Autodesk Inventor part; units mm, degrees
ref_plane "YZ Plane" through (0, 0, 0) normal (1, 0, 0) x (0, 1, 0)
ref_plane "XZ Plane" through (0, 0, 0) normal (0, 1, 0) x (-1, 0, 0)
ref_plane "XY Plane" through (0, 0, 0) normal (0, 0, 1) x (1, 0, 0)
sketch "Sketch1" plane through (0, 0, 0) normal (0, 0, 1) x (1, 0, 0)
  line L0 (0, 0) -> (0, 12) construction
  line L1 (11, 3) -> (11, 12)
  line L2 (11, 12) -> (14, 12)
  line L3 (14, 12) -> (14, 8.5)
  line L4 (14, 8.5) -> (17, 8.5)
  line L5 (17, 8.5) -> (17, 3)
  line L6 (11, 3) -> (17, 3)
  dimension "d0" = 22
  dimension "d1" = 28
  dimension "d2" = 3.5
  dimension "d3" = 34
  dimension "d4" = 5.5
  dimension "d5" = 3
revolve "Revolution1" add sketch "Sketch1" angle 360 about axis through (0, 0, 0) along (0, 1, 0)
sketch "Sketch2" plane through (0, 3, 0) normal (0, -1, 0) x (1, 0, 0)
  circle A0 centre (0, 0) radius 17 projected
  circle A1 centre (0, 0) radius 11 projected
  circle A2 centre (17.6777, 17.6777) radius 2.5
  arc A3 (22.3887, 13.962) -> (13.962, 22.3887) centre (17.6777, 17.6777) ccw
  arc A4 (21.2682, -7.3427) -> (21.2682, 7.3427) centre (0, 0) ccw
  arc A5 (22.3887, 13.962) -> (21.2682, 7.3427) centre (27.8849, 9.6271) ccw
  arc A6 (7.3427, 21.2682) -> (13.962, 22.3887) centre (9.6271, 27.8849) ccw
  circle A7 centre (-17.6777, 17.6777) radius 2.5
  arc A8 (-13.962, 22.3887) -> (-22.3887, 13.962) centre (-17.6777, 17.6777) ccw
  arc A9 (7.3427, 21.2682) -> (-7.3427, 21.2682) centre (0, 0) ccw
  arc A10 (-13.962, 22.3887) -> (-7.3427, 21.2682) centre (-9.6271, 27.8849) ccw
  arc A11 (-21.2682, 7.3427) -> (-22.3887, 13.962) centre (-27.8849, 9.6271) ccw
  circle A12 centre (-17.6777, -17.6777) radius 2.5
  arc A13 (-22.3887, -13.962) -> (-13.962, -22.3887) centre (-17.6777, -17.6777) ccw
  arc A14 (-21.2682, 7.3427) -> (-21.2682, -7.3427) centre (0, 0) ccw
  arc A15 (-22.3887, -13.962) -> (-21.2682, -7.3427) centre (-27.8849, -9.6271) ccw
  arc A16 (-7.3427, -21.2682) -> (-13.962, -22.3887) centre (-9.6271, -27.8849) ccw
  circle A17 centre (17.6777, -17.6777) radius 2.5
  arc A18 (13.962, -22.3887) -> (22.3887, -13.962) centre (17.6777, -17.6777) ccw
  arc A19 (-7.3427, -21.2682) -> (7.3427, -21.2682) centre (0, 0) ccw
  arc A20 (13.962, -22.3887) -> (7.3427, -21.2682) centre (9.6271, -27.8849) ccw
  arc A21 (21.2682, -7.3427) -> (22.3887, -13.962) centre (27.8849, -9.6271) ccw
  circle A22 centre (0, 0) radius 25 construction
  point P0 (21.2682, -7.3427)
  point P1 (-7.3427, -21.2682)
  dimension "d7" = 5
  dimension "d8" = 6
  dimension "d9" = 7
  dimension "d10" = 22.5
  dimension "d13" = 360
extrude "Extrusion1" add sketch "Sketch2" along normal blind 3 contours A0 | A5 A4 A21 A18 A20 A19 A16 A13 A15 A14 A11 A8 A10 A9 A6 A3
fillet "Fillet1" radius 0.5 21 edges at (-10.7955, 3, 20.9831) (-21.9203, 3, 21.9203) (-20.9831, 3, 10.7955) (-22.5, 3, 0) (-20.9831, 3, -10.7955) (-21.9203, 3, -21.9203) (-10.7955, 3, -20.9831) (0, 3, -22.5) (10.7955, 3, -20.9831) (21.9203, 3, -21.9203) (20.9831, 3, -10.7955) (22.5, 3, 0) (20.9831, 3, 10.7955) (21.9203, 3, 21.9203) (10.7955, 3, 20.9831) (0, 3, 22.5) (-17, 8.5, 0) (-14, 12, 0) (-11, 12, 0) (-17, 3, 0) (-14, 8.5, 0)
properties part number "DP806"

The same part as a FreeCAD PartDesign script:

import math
import FreeCAD as App
import Part
import Sketcher


def edges_at(feature, points):
    """Names of the edges that pass closest to the given points."""
    edges = feature.Shape.Edges
    near = lambda p: min(range(len(edges)), key=lambda i: edges[i].distToShape(Part.Vertex(*p))[0])
    return sorted({f"Edge{near(p) + 1}" for p in points})


def add_polygon(sketch, points):
    """Adds a closed chain of lines whose ends are joined by coincident constraints."""
    first, n = sketch.GeometryCount, len(points)
    for a, b in zip(points, points[1:] + points[:1]):
        sketch.addGeometry(Part.LineSegment(App.Vector(*a, 0), App.Vector(*b, 0)), False)
    for i in range(n):
        sketch.addConstraint(Sketcher.Constraint("Coincident", first + i, 2, first + (i + 1) % n, 1))

doc = App.newDocument("Part")
body = doc.addObject("PartDesign::Body", "Body")

sketch1 = doc.addObject("Sketcher::SketchObject", "Sketch")
body.addObject(sketch1)
sketch1.AttachmentSupport = (doc.XY_Plane, [""])
sketch1.MapMode = "FlatFace"
add_polygon(sketch1, [(11, 12), (11, 3), (17, 3), (17, 8.5), (14, 8.5), (14, 12)])
sketch1.addConstraint(Sketcher.Constraint("Vertical", 0))
sketch1.addConstraint(Sketcher.Constraint("Horizontal", 1))
sketch1.addConstraint(Sketcher.Constraint("Vertical", 2))
sketch1.addConstraint(Sketcher.Constraint("Horizontal", 3))
sketch1.addConstraint(Sketcher.Constraint("Vertical", 4))
sketch1.addConstraint(Sketcher.Constraint("Horizontal", 5))
sketch1.addConstraint(Sketcher.Constraint("Equal", 3, 5))
sketch1.addConstraint(Sketcher.Constraint("DistanceX", 3, 2, 3, 1, 3.0))
sketch1.addConstraint(Sketcher.Constraint("DistanceY", 2, 1, 2, 2, 5.5))
sketch1.addConstraint(Sketcher.Constraint("DistanceY", 4, 1, 4, 2, 3.5))
sketch1.addConstraint(Sketcher.Constraint("DistanceY", -1, 1, 0, 2, 3.0))
sketch1.addConstraint(Sketcher.Constraint("DistanceX", -1, 1, 0, 2, 11.0))
revolution = doc.addObject("PartDesign::Revolution", "Revolution")
body.addObject(revolution)
revolution.Profile = sketch1
revolution.ReferenceAxis = (sketch1, ["V_Axis"])
revolution.Angle = 360

sketch2 = doc.addObject("Sketcher::SketchObject", "Sketch001")
body.addObject(sketch2)
sketch2.AttachmentSupport = (doc.XZ_Plane, [""])
sketch2.MapMode = "FlatFace"
sketch2.AttachmentOffset = App.Placement(App.Vector(0, 0, -3), App.Rotation())
sketch2.addGeometry(Part.ArcOfCircle(Part.Circle(App.Vector(27.9, 9.6, 0), App.Vector(0, 0, 1), 7), math.radians(142), math.radians(199)), False)
sketch2.addGeometry(Part.ArcOfCircle(Part.Circle(App.Vector(17.7, 17.7, 0), App.Vector(0, 0, 1), 6), math.radians(-38), math.radians(128)), False)
sketch2.addGeometry(Part.ArcOfCircle(Part.Circle(App.Vector(9.6, 27.9, 0), App.Vector(0, 0, 1), 7), math.radians(-109), math.radians(-52)), False)
sketch2.addGeometry(Part.ArcOfCircle(Part.Circle(App.Vector(0, 0, 0), App.Vector(0, 0, 1), 22.5), math.radians(71), math.radians(109)), False)
sketch2.addGeometry(Part.ArcOfCircle(Part.Circle(App.Vector(-9.6, 27.9, 0), App.Vector(0, 0, 1), 7), math.radians(-128), math.radians(-71)), False)
sketch2.addGeometry(Part.ArcOfCircle(Part.Circle(App.Vector(-17.7, 17.7, 0), App.Vector(0, 0, 1), 6), math.radians(52), math.radians(218)), False)
sketch2.addGeometry(Part.ArcOfCircle(Part.Circle(App.Vector(-27.9, 9.6, 0), App.Vector(0, 0, 1), 7), math.radians(-19), math.radians(38)), False)
sketch2.addGeometry(Part.ArcOfCircle(Part.Circle(App.Vector(0, 0, 0), App.Vector(0, 0, 1), 22.5), math.radians(161), math.radians(199)), False)
sketch2.addGeometry(Part.ArcOfCircle(Part.Circle(App.Vector(-27.9, -9.6, 0), App.Vector(0, 0, 1), 7), math.radians(-38), math.radians(19)), False)
sketch2.addGeometry(Part.ArcOfCircle(Part.Circle(App.Vector(-17.7, -17.7, 0), App.Vector(0, 0, 1), 6), math.radians(142), math.radians(308)), False)
sketch2.addGeometry(Part.ArcOfCircle(Part.Circle(App.Vector(-9.6, -27.9, 0), App.Vector(0, 0, 1), 7), math.radians(71), math.radians(128)), False)
sketch2.addGeometry(Part.ArcOfCircle(Part.Circle(App.Vector(0, 0, 0), App.Vector(0, 0, 1), 22.5), math.radians(-109), math.radians(-71)), False)
sketch2.addGeometry(Part.ArcOfCircle(Part.Circle(App.Vector(9.6, -27.9, 0), App.Vector(0, 0, 1), 7), math.radians(52), math.radians(109)), False)
sketch2.addGeometry(Part.ArcOfCircle(Part.Circle(App.Vector(17.7, -17.7, 0), App.Vector(0, 0, 1), 6), math.radians(-128), math.radians(38)), False)
sketch2.addGeometry(Part.ArcOfCircle(Part.Circle(App.Vector(27.9, -9.6, 0), App.Vector(0, 0, 1), 7), math.radians(161), math.radians(218)), False)
sketch2.addGeometry(Part.ArcOfCircle(Part.Circle(App.Vector(0, 0, 0), App.Vector(0, 0, 1), 22.5), math.radians(-19), math.radians(19)), False)
sketch2.addGeometry(Part.Circle(App.Vector(0, 0, 0), App.Vector(0, 0, 1), 11), False)
sketch2.addGeometry(Part.Circle(App.Vector(-17.7, -17.7, 0), App.Vector(0, 0, 1), 2.5), False)
sketch2.addGeometry(Part.Circle(App.Vector(17.7, -17.7, 0), App.Vector(0, 0, 1), 2.5), False)
sketch2.addGeometry(Part.Circle(App.Vector(-17.7, 17.7, 0), App.Vector(0, 0, 1), 2.5), False)
sketch2.addGeometry(Part.Circle(App.Vector(17.7, 17.7, 0), App.Vector(0, 0, 1), 2.5), False)
sketch2.addConstraint(Sketcher.Constraint("Tangent", 0, 1, 1, 1))
sketch2.addConstraint(Sketcher.Constraint("Tangent", 1, 2, 2, 2))
sketch2.addConstraint(Sketcher.Constraint("Tangent", 2, 1, 3, 1))
sketch2.addConstraint(Sketcher.Constraint("Tangent", 3, 2, 4, 2))
sketch2.addConstraint(Sketcher.Constraint("Tangent", 4, 1, 5, 1))
sketch2.addConstraint(Sketcher.Constraint("Tangent", 5, 2, 6, 2))
sketch2.addConstraint(Sketcher.Constraint("Tangent", 6, 1, 7, 1))
sketch2.addConstraint(Sketcher.Constraint("Tangent", 7, 2, 8, 2))
sketch2.addConstraint(Sketcher.Constraint("Tangent", 8, 1, 9, 1))
sketch2.addConstraint(Sketcher.Constraint("Tangent", 9, 2, 10, 2))
sketch2.addConstraint(Sketcher.Constraint("Tangent", 10, 1, 11, 1))
sketch2.addConstraint(Sketcher.Constraint("Tangent", 11, 2, 12, 2))
sketch2.addConstraint(Sketcher.Constraint("Tangent", 12, 1, 13, 1))
sketch2.addConstraint(Sketcher.Constraint("Tangent", 13, 2, 14, 2))
sketch2.addConstraint(Sketcher.Constraint("Tangent", 14, 1, 15, 1))
sketch2.addConstraint(Sketcher.Constraint("Tangent", 15, 2, 0, 2))
sketch2.addConstraint(Sketcher.Constraint("Coincident", 3, 3, -1, 1))
sketch2.addConstraint(Sketcher.Constraint("Coincident", 7, 3, -1, 1))
sketch2.addConstraint(Sketcher.Constraint("Coincident", 11, 3, -1, 1))
sketch2.addConstraint(Sketcher.Constraint("Coincident", 15, 3, -1, 1))
sketch2.addConstraint(Sketcher.Constraint("Coincident", 16, 3, -1, 1))
sketch2.addConstraint(Sketcher.Constraint("Coincident", 17, 3, 9, 3))
sketch2.addConstraint(Sketcher.Constraint("Coincident", 18, 3, 13, 3))
sketch2.addConstraint(Sketcher.Constraint("Coincident", 19, 3, 5, 3))
sketch2.addConstraint(Sketcher.Constraint("Coincident", 20, 3, 1, 3))
sketch2.addConstraint(Sketcher.Constraint("Equal", 0, 2))
sketch2.addConstraint(Sketcher.Constraint("Equal", 2, 4))
sketch2.addConstraint(Sketcher.Constraint("Equal", 1, 5))
sketch2.addConstraint(Sketcher.Constraint("Equal", 4, 6))
sketch2.addConstraint(Sketcher.Constraint("Equal", 3, 7))
sketch2.addConstraint(Sketcher.Constraint("Equal", 6, 8))
sketch2.addConstraint(Sketcher.Constraint("Equal", 5, 9))
sketch2.addConstraint(Sketcher.Constraint("Equal", 8, 10))
sketch2.addConstraint(Sketcher.Constraint("Equal", 7, 11))
sketch2.addConstraint(Sketcher.Constraint("Equal", 10, 12))
sketch2.addConstraint(Sketcher.Constraint("Equal", 9, 13))
sketch2.addConstraint(Sketcher.Constraint("Equal", 12, 14))
sketch2.addConstraint(Sketcher.Constraint("Equal", 11, 15))
sketch2.addConstraint(Sketcher.Constraint("Equal", 17, 18))
sketch2.addConstraint(Sketcher.Constraint("Equal", 18, 19))
sketch2.addConstraint(Sketcher.Constraint("Equal", 19, 20))
sketch2.addConstraint(Sketcher.Constraint("Symmetric", 1, 3, 9, 3, -1, 1))
sketch2.addConstraint(Sketcher.Constraint("Symmetric", 5, 3, 13, 3, -1, 1))
sketch2.addConstraint(Sketcher.Constraint("Symmetric", 1, 3, 5, 3, -2))
sketch2.addConstraint(Sketcher.Constraint("Diameter", 17, 5.0))
sketch2.addConstraint(Sketcher.Constraint("Radius", 0, 7.0))
sketch2.addConstraint(Sketcher.Constraint("Radius", 1, 6.0))
sketch2.addConstraint(Sketcher.Constraint("Radius", 3, 22.5))
sketch2.addConstraint(Sketcher.Constraint("Diameter", 16, 22.0))
sketch2.addConstraint(Sketcher.Constraint("DistanceX", -1, 1, 0, 3, 27.885))
sketch2.addConstraint(Sketcher.Constraint("DistanceX", -1, 1, 2, 3, 9.627))
pad1 = doc.addObject("PartDesign::Pad", "Pad")
body.addObject(pad1)
pad1.Profile = sketch2
pad1.Length = 3
doc.recompute()

fillet = doc.addObject("PartDesign::Fillet", "Fillet")
body.addObject(fillet)
fillet.Base = (pad1, edges_at(pad1, [
    (-10.796, 3, 20.983),
    (-21.92, 3, 21.92),
    (-20.983, 3, 10.796),
    (-22.5, 3, 0),
    (-20.983, 3, -10.796),
    (-21.92, 3, -21.92),
    (-10.796, 3, -20.983),
    (0, 3, -22.5),
    (10.796, 3, -20.983),
    (21.92, 3, -21.92),
    (20.983, 3, -10.796),
    (22.5, 3, 0),
    (20.983, 3, 10.796),
    (21.92, 3, 21.92),
    (10.796, 3, 20.983),
    (0, 3, 22.5),
    (-17, 8.5, 0),
    (-14, 12, 0),
    (-11, 12, 0),
    (-17, 3, 0),
    (-14, 8.5, 0),
]))
fillet.Radius = 0.5

doc.recompute()
